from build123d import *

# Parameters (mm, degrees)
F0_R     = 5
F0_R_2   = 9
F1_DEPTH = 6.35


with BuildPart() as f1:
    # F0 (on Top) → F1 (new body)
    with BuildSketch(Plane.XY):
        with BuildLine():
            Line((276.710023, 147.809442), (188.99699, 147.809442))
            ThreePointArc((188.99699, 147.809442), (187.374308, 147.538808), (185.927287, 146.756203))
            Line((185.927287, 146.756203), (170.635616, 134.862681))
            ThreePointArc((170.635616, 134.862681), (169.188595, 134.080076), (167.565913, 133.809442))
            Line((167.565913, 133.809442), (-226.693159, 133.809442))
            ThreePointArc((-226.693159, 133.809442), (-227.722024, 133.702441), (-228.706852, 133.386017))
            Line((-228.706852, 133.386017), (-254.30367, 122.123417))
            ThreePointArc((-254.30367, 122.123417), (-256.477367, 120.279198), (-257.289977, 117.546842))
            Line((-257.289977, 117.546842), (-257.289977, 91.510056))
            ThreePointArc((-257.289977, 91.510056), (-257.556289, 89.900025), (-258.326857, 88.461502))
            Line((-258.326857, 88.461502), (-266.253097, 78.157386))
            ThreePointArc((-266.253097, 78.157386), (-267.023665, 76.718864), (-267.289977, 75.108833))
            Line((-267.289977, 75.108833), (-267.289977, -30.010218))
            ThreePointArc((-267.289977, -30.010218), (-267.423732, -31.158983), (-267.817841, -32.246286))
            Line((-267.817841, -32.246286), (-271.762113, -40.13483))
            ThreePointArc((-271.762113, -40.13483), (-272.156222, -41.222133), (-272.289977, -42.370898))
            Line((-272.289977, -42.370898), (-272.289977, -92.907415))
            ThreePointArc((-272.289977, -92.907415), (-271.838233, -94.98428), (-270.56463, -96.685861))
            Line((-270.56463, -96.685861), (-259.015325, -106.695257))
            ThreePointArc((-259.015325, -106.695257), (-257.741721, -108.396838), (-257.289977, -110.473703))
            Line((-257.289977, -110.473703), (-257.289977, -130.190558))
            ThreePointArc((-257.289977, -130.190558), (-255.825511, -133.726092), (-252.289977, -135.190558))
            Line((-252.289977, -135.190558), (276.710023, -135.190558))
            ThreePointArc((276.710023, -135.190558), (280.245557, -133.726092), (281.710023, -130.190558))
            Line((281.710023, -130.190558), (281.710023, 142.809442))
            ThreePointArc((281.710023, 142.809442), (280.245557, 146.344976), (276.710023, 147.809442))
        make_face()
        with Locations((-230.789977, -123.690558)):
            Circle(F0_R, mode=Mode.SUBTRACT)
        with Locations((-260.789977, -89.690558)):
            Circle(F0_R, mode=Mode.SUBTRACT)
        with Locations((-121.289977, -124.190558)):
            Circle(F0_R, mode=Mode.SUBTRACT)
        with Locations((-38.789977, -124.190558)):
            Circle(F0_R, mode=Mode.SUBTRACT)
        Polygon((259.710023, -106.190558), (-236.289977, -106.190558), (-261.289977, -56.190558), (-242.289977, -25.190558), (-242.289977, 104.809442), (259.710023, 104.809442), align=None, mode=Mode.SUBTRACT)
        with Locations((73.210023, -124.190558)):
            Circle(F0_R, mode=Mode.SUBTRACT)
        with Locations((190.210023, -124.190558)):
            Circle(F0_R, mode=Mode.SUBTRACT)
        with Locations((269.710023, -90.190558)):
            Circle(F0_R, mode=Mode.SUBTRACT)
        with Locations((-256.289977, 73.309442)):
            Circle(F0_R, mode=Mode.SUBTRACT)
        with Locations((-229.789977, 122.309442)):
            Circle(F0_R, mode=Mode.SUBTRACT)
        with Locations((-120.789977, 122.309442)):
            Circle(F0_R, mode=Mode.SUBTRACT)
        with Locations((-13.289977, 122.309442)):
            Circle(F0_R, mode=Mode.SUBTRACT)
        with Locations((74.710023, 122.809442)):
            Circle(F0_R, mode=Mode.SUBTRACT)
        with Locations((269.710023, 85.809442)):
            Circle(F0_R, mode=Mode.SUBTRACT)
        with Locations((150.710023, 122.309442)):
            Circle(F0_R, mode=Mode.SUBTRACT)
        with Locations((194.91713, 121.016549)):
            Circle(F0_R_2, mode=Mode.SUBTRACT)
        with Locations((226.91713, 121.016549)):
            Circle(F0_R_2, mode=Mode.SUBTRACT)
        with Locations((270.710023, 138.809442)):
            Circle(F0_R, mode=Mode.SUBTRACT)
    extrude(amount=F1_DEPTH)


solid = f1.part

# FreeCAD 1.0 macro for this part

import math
import FreeCAD as App
import Part
import Sketcher
from FreeCAD import Vector

doc = App.newDocument("Part")
params = doc.addObject("Spreadsheet::Sheet", "Params")
for row, (alias, value) in enumerate([
    ("sketch1_diameter", "10 mm"),
    ("sketch1_diameter2", "10 mm"),
    ("sketch1_diameter3", "10 mm"),
    ("sketch1_diameter4", "10 mm"),
    ("sketch1_diameter5", "10 mm"),
    ("pad1_length", "6.35 mm"),
], start=1):
    params.set(f"A{row}", alias)
    params.set(f"B{row}", "=" + value)
    params.setAlias(f"B{row}", alias)

body = doc.addObject("PartDesign::Body", "Body")

# Sketch on XY plane
sketch1 = body.newObject("Sketcher::SketchObject", "Sketch")
sketch1.AttachmentSupport = (doc.getObject("XY_Plane"), [""])
sketch1.MapMode = "FlatFace"
sketch1.addGeometry([
    Part.LineSegment(Vector(276.710023, 147.809442, 0), Vector(188.99699, 147.809442, 0)),  # 0
    Part.ArcOfCircle(Part.Circle(Vector(188.99699, 142.809442, 0), Vector(0, 0, 1), 5), math.radians(90.000001), math.radians(127.874987)),  # 1
    Part.LineSegment(Vector(185.927287, 146.756203, 0), Vector(170.635616, 134.862681, 0)),  # 2
    Part.ArcOfCircle(Part.Circle(Vector(167.565913, 138.809442, 0), Vector(0, 0, 1), 5), math.radians(-89.999999), math.radians(-52.125013)),  # 3
    Part.LineSegment(Vector(167.565913, 133.809442, 0), Vector(-226.693159, 133.809442, 0)),  # 4
    Part.ArcOfCircle(Part.Circle(Vector(-226.693162, 128.809457, 0), Vector(0, 0, 1), 4.999985), math.radians(89.999969), math.radians(113.749536)),  # 5
    Part.LineSegment(Vector(-228.706852, 133.386017, 0), Vector(-254.30367, 122.123417, 0)),  # 6
    Part.ArcOfCircle(Part.Circle(Vector(-252.28998, 117.546844, 0), Vector(0, 0, 1), 4.999997), math.radians(113.749473), math.radians(180.000019)),  # 7
    Part.LineSegment(Vector(-257.289977, 117.546842, 0), Vector(-257.289977, 91.510056, 0)),  # 8
    Part.ArcOfCircle(Part.Circle(Vector(-262.289975, 91.510055, 0), Vector(0, 0, 1), 4.999998), math.radians(-37.568598), math.radians(0.00001)),  # 9
    Part.LineSegment(Vector(-258.326857, 88.461502, 0), Vector(-266.253097, 78.157386, 0)),  # 10
    Part.ArcOfCircle(Part.Circle(Vector(-262.289985, 75.108835, 0), Vector(0, 0, 1), 4.999992), math.radians(142.431379), math.radians(180.000021)),  # 11
    Part.LineSegment(Vector(-267.289977, 75.108833, 0), Vector(-267.289977, -30.010218, 0)),  # 12
    Part.ArcOfCircle(Part.Circle(Vector(-272.289973, -30.010219, 0), Vector(0, 0, 1), 4.999996), math.radians(-26.565062), math.radians(0.000013)),  # 13
    Part.LineSegment(Vector(-267.817841, -32.246286, 0), Vector(-271.762113, -40.13483, 0)),  # 14
    Part.ArcOfCircle(Part.Circle(Vector(-267.289981, -42.370897, 0), Vector(0, 0, 1), 4.999996), math.radians(153.434938), math.radians(180.000013)),  # 15
    Part.LineSegment(Vector(-272.289977, -42.370898, 0), Vector(-272.289977, -92.907415, 0)),  # 16
    Part.ArcOfCircle(Part.Circle(Vector(-267.289974, -92.907415, 0), Vector(0, 0, 1), 5.000003), math.radians(-179.999996), math.radians(-130.914402)),  # 17
    Part.LineSegment(Vector(-270.56463, -96.685861, 0), Vector(-259.015325, -106.695257, 0)),  # 18
    Part.ArcOfCircle(Part.Circle(Vector(-262.289976, -110.473703, 0), Vector(0, 0, 1), 4.999999), math.radians(-0.000005), math.radians(49.085632)),  # 19
    Part.LineSegment(Vector(-257.289977, -110.473703, 0), Vector(-257.289977, -130.190558, 0)),  # 20
    Part.ArcOfCircle(Part.Circle(Vector(-252.289977, -130.190558, 0), Vector(0, 0, 1), 5), math.radians(179.999996), math.radians(270.000004)),  # 21
    Part.LineSegment(Vector(-252.289977, -135.190558, 0), Vector(276.710023, -135.190558, 0)),  # 22
    Part.ArcOfCircle(Part.Circle(Vector(276.710023, -130.190558, 0), Vector(0, 0, 1), 5), math.radians(-90.000004), math.radians(0.000004)),  # 23
    Part.LineSegment(Vector(281.710023, -130.190558, 0), Vector(281.710023, 142.809442, 0)),  # 24
    Part.ArcOfCircle(Part.Circle(Vector(276.710023, 142.809442, 0), Vector(0, 0, 1), 5), math.radians(-0.000004), math.radians(90.000004)),  # 25
    Part.Circle(Vector(-230.789977, -123.690558, 0), Vector(0, 0, 1), 5),  # 26
    Part.Circle(Vector(-260.789977, -89.690558, 0), Vector(0, 0, 1), 5),  # 27
    Part.Circle(Vector(-121.289977, -124.190558, 0), Vector(0, 0, 1), 5),  # 28
    Part.Circle(Vector(-38.789977, -124.190558, 0), Vector(0, 0, 1), 5),  # 29
    Part.LineSegment(Vector(259.710023, 104.809442, 0), Vector(259.710023, -106.190558, 0)),  # 30
    Part.LineSegment(Vector(259.710023, -106.190558, 0), Vector(-236.289977, -106.190558, 0)),  # 31
    Part.LineSegment(Vector(-236.289977, -106.190558, 0), Vector(-261.289977, -56.190558, 0)),  # 32
    Part.LineSegment(Vector(-261.289977, -56.190558, 0), Vector(-242.289977, -25.190558, 0)),  # 33
    Part.LineSegment(Vector(-242.289977, -25.190558, 0), Vector(-242.289977, 104.809442, 0)),  # 34
    Part.LineSegment(Vector(-242.289977, 104.809442, 0), Vector(259.710023, 104.809442, 0)),  # 35
    Part.Circle(Vector(73.210023, -124.190558, 0), Vector(0, 0, 1), 5),  # 36
    Part.Circle(Vector(190.210023, -124.190558, 0), Vector(0, 0, 1), 5),  # 37
    Part.Circle(Vector(269.710023, -90.190558, 0), Vector(0, 0, 1), 5),  # 38
    Part.Circle(Vector(-256.289977, 73.309442, 0), Vector(0, 0, 1), 5),  # 39
    Part.Circle(Vector(-229.789977, 122.309442, 0), Vector(0, 0, 1), 5),  # 40
    Part.Circle(Vector(-120.789977, 122.309442, 0), Vector(0, 0, 1), 5),  # 41
    Part.Circle(Vector(-13.289977, 122.309442, 0), Vector(0, 0, 1), 5),  # 42
    Part.Circle(Vector(74.710023, 122.809442, 0), Vector(0, 0, 1), 5),  # 43
    Part.Circle(Vector(269.710023, 85.809442, 0), Vector(0, 0, 1), 5),  # 44
    Part.Circle(Vector(150.710023, 122.309442, 0), Vector(0, 0, 1), 5),  # 45
    Part.Circle(Vector(194.91713, 121.016549, 0), Vector(0, 0, 1), 9),  # 46
    Part.Circle(Vector(226.91713, 121.016549, 0), Vector(0, 0, 1), 9),  # 47
    Part.Circle(Vector(270.710023, 138.809442, 0), Vector(0, 0, 1), 5),  # 48
], False)
sketch1.addConstraint([
    Sketcher.Constraint("Coincident", 0, 2, 1, 1),
    Sketcher.Constraint("Coincident", 1, 2, 2, 1),
    Sketcher.Constraint("Coincident", 2, 2, 3, 2),
    Sketcher.Constraint("Coincident", 3, 1, 4, 1),
    Sketcher.Constraint("Coincident", 4, 2, 5, 1),
    Sketcher.Constraint("Coincident", 5, 2, 6, 1),
    Sketcher.Constraint("Coincident", 6, 2, 7, 1),
    Sketcher.Constraint("Coincident", 7, 2, 8, 1),
    Sketcher.Constraint("Coincident", 8, 2, 9, 2),
    Sketcher.Constraint("Coincident", 9, 1, 10, 1),
    Sketcher.Constraint("Coincident", 10, 2, 11, 1),
    Sketcher.Constraint("Coincident", 11, 2, 12, 1),
    Sketcher.Constraint("Coincident", 12, 2, 13, 2),
    Sketcher.Constraint("Coincident", 13, 1, 14, 1),
    Sketcher.Constraint("Coincident", 14, 2, 15, 1),
    Sketcher.Constraint("Coincident", 15, 2, 16, 1),
    Sketcher.Constraint("Coincident", 16, 2, 17, 1),
    Sketcher.Constraint("Coincident", 17, 2, 18, 1),
    Sketcher.Constraint("Coincident", 18, 2, 19, 2),
    Sketcher.Constraint("Coincident", 19, 1, 20, 1),
    Sketcher.Constraint("Coincident", 20, 2, 21, 1),
    Sketcher.Constraint("Coincident", 21, 2, 22, 1),
    Sketcher.Constraint("Coincident", 22, 2, 23, 1),
    Sketcher.Constraint("Coincident", 23, 2, 24, 1),
    Sketcher.Constraint("Coincident", 24, 2, 25, 1),
    Sketcher.Constraint("Coincident", 25, 2, 0, 1),
    Sketcher.Constraint("Coincident", 30, 2, 31, 1),
    Sketcher.Constraint("Coincident", 31, 2, 32, 1),
    Sketcher.Constraint("Coincident", 32, 2, 33, 1),
    Sketcher.Constraint("Coincident", 33, 2, 34, 1),
    Sketcher.Constraint("Coincident", 34, 2, 35, 1),
    Sketcher.Constraint("Coincident", 35, 2, 30, 1),
    Sketcher.Constraint("Horizontal", 0),
    Sketcher.Constraint("Horizontal", 4),
    Sketcher.Constraint("Vertical", 8),
    Sketcher.Constraint("Vertical", 12),
    Sketcher.Constraint("Vertical", 16),
    Sketcher.Constraint("Vertical", 20),
    Sketcher.Constraint("Horizontal", 22),
    Sketcher.Constraint("Vertical", 24),
    Sketcher.Constraint("Vertical", 30),
    Sketcher.Constraint("Horizontal", 31),
    Sketcher.Constraint("Vertical", 34),
    Sketcher.Constraint("Horizontal", 35),
    Sketcher.Constraint("Diameter", 26, 10.0),
    Sketcher.Constraint("Diameter", 27, 10.0),
    Sketcher.Constraint("Diameter", 28, 10.0),
    Sketcher.Constraint("Diameter", 29, 10.0),
    Sketcher.Constraint("Diameter", 36, 10.0),
    Sketcher.Constraint("Diameter", 37, 10.0),
    Sketcher.Constraint("Diameter", 38, 10.0),
    Sketcher.Constraint("Diameter", 39, 10.0),
    Sketcher.Constraint("Diameter", 40, 10.0),
    Sketcher.Constraint("Diameter", 41, 10.0),
    Sketcher.Constraint("Diameter", 42, 10.0),
    Sketcher.Constraint("Diameter", 43, 10.0),
    Sketcher.Constraint("Diameter", 44, 10.0),
    Sketcher.Constraint("Diameter", 45, 10.0),
    Sketcher.Constraint("Diameter", 46, 18.0),
    Sketcher.Constraint("Diameter", 47, 18.0),
    Sketcher.Constraint("Diameter", 48, 10.0),
    Sketcher.Constraint("Radius", 1, 5.0),
    Sketcher.Constraint("Radius", 3, 5.0),
    Sketcher.Constraint("Radius", 9, 4.999998),
    Sketcher.Constraint("Radius", 19, 4.999999),
    Sketcher.Constraint("Radius", 21, 5.0),
    Sketcher.Constraint("Radius", 23, 5.0),
    Sketcher.Constraint("Radius", 25, 5.0),
    Sketcher.Constraint("DistanceX", 22, 1, 22, 2, 529.0),
    Sketcher.Constraint("DistanceX", 31, 2, 31, 1, 496.0),
    Sketcher.Constraint("DistanceX", 35, 1, 35, 2, 502.0),
    Sketcher.Constraint("DistanceY", 24, 1, 24, 2, 273.0),
    Sketcher.Constraint("DistanceY", 30, 2, 30, 1, 211.0),
    Sketcher.Constraint("DistanceY", 34, 1, 34, 2, 130.0),
    Sketcher.Constraint("Radius", 5, 4.999985),
    Sketcher.Constraint("Radius", 7, 4.999997),
    Sketcher.Constraint("Radius", 11, 4.999992),
    Sketcher.Constraint("Radius", 13, 4.999996),
    Sketcher.Constraint("Radius", 15, 4.999996),
    Sketcher.Constraint("Radius", 17, 5.000003),
    Sketcher.Constraint("Distance", 32, 55.901699),
    Sketcher.Constraint("DistanceX", 4, 2, 4, 1, 394.259072),
    Sketcher.Constraint("DistanceY", 12, 2, 12, 1, 105.119051),
    Sketcher.Constraint("DistanceY", -1, 1, 9, 1, 88.461502),
    Sketcher.Constraint("Distance", 2, 19.372431),
    Sketcher.Constraint("Distance", 14, 8.81966),
    Sketcher.Constraint("DistanceX", 0, 2, 0, 1, 87.713033),
    Sketcher.Constraint("DistanceY", 8, 2, 8, 1, 26.036786),
    Sketcher.Constraint("DistanceY", 16, 2, 16, 1, 50.536517),
    Sketcher.Constraint("DistanceY", 20, 2, 20, 1, 19.716855),
    Sketcher.Constraint("DistanceX", -1, 1, 1, 3, 188.99699),
    Sketcher.Constraint("DistanceY", -1, 1, 3, 3, 138.809442),
    Sketcher.Constraint("DistanceX", 5, 3, -1, 1, 226.693162),
    Sketcher.Constraint("DistanceX", 7, 3, -1, 1, 252.28998),
    Sketcher.Constraint("DistanceY", 13, 3, -1, 1, 30.010219),
    Sketcher.Constraint("DistanceX", 15, 3, -1, 1, 267.289981),
    Sketcher.Constraint("DistanceY", 21, 3, -1, 1, 130.190558),
    Sketcher.Constraint("DistanceX", -1, 1, 46, 3, 194.91713),
    Sketcher.Constraint("DistanceY", -1, 1, 46, 3, 121.016549),
    Sketcher.Constraint("DistanceX", -1, 1, 47, 3, 226.91713),
    Sketcher.Constraint("DistanceY", -1, 1, 47, 3, 121.016549),
    Sketcher.Constraint("DistanceY", -1, 1, 48, 3, 138.809442),
    Sketcher.Constraint("DistanceX", -1, 1, 0, 2, 188.99699),
    Sketcher.Constraint("DistanceY", -1, 1, 0, 2, 147.809442),
    Sketcher.Constraint("DistanceY", -1, 1, 2, 2, 134.862681),
    Sketcher.Constraint("DistanceX", 4, 2, -1, 1, 226.693159),
    Sketcher.Constraint("DistanceX", 5, 2, -1, 1, 228.706852),
    Sketcher.Constraint("DistanceX", 6, 2, -1, 1, 254.30367),
    Sketcher.Constraint("DistanceY", -1, 1, 7, 2, 117.546842),
    Sketcher.Constraint("DistanceX", 13, 1, -1, 1, 267.817841),
    Sketcher.Constraint("DistanceY", 14, 2, -1, 1, 40.13483),
    Sketcher.Constraint("DistanceX", 17, 2, -1, 1, 270.56463),
    Sketcher.Constraint("DistanceY", 17, 2, -1, 1, 96.685861),
    Sketcher.Constraint("DistanceY", 20, 2, -1, 1, 130.190558),
    Sketcher.Constraint("DistanceY", 23, 2, -1, 1, 130.190558),
    Sketcher.Constraint("DistanceY", 32, 2, -1, 1, 56.190558),
    Sketcher.Constraint("Distance", 6, 27.965036),
    Sketcher.Constraint("Distance", 10, 13.000003),
    Sketcher.Constraint("Distance", 18, 15.283143),
    Sketcher.Constraint("Distance", 33, 36.359318),
    Sketcher.Constraint("DistanceX", -1, 1, 3, 3, 167.565913),
    Sketcher.Constraint("DistanceY", -1, 1, 9, 3, 91.510055),
    Sketcher.Constraint("DistanceX", 11, 3, -1, 1, 262.289985),
    Sketcher.Constraint("DistanceY", -1, 1, 11, 3, 75.108835),
    Sketcher.Constraint("DistanceX", 19, 3, -1, 1, 262.289976),
    Sketcher.Constraint("DistanceY", 19, 3, -1, 1, 110.473703),
    Sketcher.Constraint("DistanceX", -1, 1, 23, 3, 276.710023),
    Sketcher.Constraint("DistanceX", 26, 3, -1, 1, 230.789977),
    Sketcher.Constraint("DistanceY", 26, 3, -1, 1, 123.690558),
    Sketcher.Constraint("DistanceX", 27, 3, -1, 1, 260.789977),
    Sketcher.Constraint("DistanceY", 27, 3, -1, 1, 89.690558),
    Sketcher.Constraint("DistanceX", 28, 3, -1, 1, 121.289977),
    Sketcher.Constraint("DistanceY", 28, 3, -1, 1, 124.190558),
    Sketcher.Constraint("DistanceX", 29, 3, -1, 1, 38.789977),
    Sketcher.Constraint("DistanceY", 29, 3, -1, 1, 124.190558),
    Sketcher.Constraint("DistanceX", -1, 1, 36, 3, 73.210023),
    Sketcher.Constraint("DistanceY", 36, 3, -1, 1, 124.190558),
    Sketcher.Constraint("DistanceX", -1, 1, 37, 3, 190.210023),
    Sketcher.Constraint("DistanceY", 37, 3, -1, 1, 124.190558),
    Sketcher.Constraint("DistanceX", -1, 1, 38, 3, 269.710023),
    Sketcher.Constraint("DistanceY", 38, 3, -1, 1, 90.190558),
    Sketcher.Constraint("DistanceX", 39, 3, -1, 1, 256.289977),
    Sketcher.Constraint("DistanceY", -1, 1, 39, 3, 73.309442),
    Sketcher.Constraint("DistanceX", 40, 3, -1, 1, 229.789977),
    Sketcher.Constraint("DistanceY", -1, 1, 40, 3, 122.309442),
    Sketcher.Constraint("DistanceX", 41, 3, -1, 1, 120.789977),
    Sketcher.Constraint("DistanceY", -1, 1, 41, 3, 122.309442),
    Sketcher.Constraint("DistanceX", 42, 3, -1, 1, 13.289977),
    Sketcher.Constraint("DistanceY", -1, 1, 42, 3, 122.309442),
    Sketcher.Constraint("DistanceX", -1, 1, 43, 3, 74.710023),
    Sketcher.Constraint("DistanceY", -1, 1, 43, 3, 122.809442),
    Sketcher.Constraint("DistanceX", -1, 1, 44, 3, 269.710023),
    Sketcher.Constraint("DistanceY", -1, 1, 44, 3, 85.809442),
    Sketcher.Constraint("DistanceX", -1, 1, 45, 3, 150.710023),
    Sketcher.Constraint("DistanceY", -1, 1, 45, 3, 122.309442),
    Sketcher.Constraint("DistanceX", -1, 1, 48, 3, 270.710023),
    Sketcher.Constraint("DistanceY", -1, 1, 11, 2, 75.108833),
    Sketcher.Constraint("DistanceY", 15, 2, -1, 1, 42.370898),
    Sketcher.Constraint("DistanceX", 21, 2, -1, 1, 252.289977),
    Sketcher.Constraint("DistanceX", -1, 1, 30, 2, 259.710023),
])
sketch1.setExpression("Constraints[44]", "Params.sketch1_diameter")
sketch1.setExpression("Constraints[45]", "Params.sketch1_diameter2")
sketch1.setExpression("Constraints[46]", "Params.sketch1_diameter3")
sketch1.setExpression("Constraints[47]", "Params.sketch1_diameter4")
sketch1.setExpression("Constraints[48]", "Params.sketch1_diameter5")
pad1 = body.newObject("PartDesign::Pad", "Pad")
pad1.Profile = sketch1
pad1.setExpression("Length", "Params.pad1_length")

doc.recompute()
